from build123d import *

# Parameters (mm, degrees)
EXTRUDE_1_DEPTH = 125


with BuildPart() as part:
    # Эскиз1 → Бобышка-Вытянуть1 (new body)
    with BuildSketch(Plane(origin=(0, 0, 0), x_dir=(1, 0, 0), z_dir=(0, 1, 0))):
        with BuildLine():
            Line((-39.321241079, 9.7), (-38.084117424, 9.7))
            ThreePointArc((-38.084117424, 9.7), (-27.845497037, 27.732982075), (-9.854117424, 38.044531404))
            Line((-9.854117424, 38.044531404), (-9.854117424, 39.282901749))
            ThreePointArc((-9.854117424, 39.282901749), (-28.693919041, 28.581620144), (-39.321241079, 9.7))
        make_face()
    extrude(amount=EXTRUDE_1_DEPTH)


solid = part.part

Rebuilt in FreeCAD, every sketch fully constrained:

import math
import FreeCAD as App
import Part
import Sketcher
from FreeCAD import Vector

doc = App.newDocument("Part")
body = doc.addObject("PartDesign::Body", "Body")

sketch1 = doc.addObject("Sketcher::SketchObject", "Sketch")
body.addObject(sketch1)
sketch1.AttachmentSupport = (doc.XZ_Plane, [""])
sketch1.MapMode = "FlatFace"
sketch1.addGeometry([
    Part.LineSegment(Vector(-39.3, -9.7, 0), Vector(-38.1, -9.7, 0)),
    Part.ArcOfCircle(Part.Circle(Vector(0, 0, 0), Vector(0, 0, 1), 39.3), math.radians(-166), math.radians(-105)),
    Part.LineSegment(Vector(-9.9, -38, 0), Vector(-9.9, -39.3, 0)),
    Part.ArcOfCircle(Part.Circle(Vector(0, 0, 0), Vector(0, 0, 1), 40.5), math.radians(-166), math.radians(-104)),
], False)
sketch1.addConstraint([
    Sketcher.Constraint("Coincident", 0, 2, 1, 1),
    Sketcher.Constraint("Coincident", 1, 2, 2, 1),
    Sketcher.Constraint("Coincident", 2, 2, 3, 2),
    Sketcher.Constraint("Coincident", 3, 1, 0, 1),
    Sketcher.Constraint("Horizontal", 0),
    Sketcher.Constraint("Vertical", 2),
    Sketcher.Constraint("Coincident", 1, 3, -1, 1),
    Sketcher.Constraint("Coincident", 3, 3, -1, 1),
    Sketcher.Constraint("Radius", 1, 39.3),
    Sketcher.Constraint("Radius", 3, 40.5),
    Sketcher.Constraint("DistanceY", 0, 2, -1, 1, 9.7),
    Sketcher.Constraint("DistanceX", 0, 2, 1, 2, 28.23),
])
pad1 = doc.addObject("PartDesign::Pad", "Pad")
body.addObject(pad1)
pad1.Profile = sketch1
pad1.Length = 125
pad1.Reversed = True

doc.recompute()
